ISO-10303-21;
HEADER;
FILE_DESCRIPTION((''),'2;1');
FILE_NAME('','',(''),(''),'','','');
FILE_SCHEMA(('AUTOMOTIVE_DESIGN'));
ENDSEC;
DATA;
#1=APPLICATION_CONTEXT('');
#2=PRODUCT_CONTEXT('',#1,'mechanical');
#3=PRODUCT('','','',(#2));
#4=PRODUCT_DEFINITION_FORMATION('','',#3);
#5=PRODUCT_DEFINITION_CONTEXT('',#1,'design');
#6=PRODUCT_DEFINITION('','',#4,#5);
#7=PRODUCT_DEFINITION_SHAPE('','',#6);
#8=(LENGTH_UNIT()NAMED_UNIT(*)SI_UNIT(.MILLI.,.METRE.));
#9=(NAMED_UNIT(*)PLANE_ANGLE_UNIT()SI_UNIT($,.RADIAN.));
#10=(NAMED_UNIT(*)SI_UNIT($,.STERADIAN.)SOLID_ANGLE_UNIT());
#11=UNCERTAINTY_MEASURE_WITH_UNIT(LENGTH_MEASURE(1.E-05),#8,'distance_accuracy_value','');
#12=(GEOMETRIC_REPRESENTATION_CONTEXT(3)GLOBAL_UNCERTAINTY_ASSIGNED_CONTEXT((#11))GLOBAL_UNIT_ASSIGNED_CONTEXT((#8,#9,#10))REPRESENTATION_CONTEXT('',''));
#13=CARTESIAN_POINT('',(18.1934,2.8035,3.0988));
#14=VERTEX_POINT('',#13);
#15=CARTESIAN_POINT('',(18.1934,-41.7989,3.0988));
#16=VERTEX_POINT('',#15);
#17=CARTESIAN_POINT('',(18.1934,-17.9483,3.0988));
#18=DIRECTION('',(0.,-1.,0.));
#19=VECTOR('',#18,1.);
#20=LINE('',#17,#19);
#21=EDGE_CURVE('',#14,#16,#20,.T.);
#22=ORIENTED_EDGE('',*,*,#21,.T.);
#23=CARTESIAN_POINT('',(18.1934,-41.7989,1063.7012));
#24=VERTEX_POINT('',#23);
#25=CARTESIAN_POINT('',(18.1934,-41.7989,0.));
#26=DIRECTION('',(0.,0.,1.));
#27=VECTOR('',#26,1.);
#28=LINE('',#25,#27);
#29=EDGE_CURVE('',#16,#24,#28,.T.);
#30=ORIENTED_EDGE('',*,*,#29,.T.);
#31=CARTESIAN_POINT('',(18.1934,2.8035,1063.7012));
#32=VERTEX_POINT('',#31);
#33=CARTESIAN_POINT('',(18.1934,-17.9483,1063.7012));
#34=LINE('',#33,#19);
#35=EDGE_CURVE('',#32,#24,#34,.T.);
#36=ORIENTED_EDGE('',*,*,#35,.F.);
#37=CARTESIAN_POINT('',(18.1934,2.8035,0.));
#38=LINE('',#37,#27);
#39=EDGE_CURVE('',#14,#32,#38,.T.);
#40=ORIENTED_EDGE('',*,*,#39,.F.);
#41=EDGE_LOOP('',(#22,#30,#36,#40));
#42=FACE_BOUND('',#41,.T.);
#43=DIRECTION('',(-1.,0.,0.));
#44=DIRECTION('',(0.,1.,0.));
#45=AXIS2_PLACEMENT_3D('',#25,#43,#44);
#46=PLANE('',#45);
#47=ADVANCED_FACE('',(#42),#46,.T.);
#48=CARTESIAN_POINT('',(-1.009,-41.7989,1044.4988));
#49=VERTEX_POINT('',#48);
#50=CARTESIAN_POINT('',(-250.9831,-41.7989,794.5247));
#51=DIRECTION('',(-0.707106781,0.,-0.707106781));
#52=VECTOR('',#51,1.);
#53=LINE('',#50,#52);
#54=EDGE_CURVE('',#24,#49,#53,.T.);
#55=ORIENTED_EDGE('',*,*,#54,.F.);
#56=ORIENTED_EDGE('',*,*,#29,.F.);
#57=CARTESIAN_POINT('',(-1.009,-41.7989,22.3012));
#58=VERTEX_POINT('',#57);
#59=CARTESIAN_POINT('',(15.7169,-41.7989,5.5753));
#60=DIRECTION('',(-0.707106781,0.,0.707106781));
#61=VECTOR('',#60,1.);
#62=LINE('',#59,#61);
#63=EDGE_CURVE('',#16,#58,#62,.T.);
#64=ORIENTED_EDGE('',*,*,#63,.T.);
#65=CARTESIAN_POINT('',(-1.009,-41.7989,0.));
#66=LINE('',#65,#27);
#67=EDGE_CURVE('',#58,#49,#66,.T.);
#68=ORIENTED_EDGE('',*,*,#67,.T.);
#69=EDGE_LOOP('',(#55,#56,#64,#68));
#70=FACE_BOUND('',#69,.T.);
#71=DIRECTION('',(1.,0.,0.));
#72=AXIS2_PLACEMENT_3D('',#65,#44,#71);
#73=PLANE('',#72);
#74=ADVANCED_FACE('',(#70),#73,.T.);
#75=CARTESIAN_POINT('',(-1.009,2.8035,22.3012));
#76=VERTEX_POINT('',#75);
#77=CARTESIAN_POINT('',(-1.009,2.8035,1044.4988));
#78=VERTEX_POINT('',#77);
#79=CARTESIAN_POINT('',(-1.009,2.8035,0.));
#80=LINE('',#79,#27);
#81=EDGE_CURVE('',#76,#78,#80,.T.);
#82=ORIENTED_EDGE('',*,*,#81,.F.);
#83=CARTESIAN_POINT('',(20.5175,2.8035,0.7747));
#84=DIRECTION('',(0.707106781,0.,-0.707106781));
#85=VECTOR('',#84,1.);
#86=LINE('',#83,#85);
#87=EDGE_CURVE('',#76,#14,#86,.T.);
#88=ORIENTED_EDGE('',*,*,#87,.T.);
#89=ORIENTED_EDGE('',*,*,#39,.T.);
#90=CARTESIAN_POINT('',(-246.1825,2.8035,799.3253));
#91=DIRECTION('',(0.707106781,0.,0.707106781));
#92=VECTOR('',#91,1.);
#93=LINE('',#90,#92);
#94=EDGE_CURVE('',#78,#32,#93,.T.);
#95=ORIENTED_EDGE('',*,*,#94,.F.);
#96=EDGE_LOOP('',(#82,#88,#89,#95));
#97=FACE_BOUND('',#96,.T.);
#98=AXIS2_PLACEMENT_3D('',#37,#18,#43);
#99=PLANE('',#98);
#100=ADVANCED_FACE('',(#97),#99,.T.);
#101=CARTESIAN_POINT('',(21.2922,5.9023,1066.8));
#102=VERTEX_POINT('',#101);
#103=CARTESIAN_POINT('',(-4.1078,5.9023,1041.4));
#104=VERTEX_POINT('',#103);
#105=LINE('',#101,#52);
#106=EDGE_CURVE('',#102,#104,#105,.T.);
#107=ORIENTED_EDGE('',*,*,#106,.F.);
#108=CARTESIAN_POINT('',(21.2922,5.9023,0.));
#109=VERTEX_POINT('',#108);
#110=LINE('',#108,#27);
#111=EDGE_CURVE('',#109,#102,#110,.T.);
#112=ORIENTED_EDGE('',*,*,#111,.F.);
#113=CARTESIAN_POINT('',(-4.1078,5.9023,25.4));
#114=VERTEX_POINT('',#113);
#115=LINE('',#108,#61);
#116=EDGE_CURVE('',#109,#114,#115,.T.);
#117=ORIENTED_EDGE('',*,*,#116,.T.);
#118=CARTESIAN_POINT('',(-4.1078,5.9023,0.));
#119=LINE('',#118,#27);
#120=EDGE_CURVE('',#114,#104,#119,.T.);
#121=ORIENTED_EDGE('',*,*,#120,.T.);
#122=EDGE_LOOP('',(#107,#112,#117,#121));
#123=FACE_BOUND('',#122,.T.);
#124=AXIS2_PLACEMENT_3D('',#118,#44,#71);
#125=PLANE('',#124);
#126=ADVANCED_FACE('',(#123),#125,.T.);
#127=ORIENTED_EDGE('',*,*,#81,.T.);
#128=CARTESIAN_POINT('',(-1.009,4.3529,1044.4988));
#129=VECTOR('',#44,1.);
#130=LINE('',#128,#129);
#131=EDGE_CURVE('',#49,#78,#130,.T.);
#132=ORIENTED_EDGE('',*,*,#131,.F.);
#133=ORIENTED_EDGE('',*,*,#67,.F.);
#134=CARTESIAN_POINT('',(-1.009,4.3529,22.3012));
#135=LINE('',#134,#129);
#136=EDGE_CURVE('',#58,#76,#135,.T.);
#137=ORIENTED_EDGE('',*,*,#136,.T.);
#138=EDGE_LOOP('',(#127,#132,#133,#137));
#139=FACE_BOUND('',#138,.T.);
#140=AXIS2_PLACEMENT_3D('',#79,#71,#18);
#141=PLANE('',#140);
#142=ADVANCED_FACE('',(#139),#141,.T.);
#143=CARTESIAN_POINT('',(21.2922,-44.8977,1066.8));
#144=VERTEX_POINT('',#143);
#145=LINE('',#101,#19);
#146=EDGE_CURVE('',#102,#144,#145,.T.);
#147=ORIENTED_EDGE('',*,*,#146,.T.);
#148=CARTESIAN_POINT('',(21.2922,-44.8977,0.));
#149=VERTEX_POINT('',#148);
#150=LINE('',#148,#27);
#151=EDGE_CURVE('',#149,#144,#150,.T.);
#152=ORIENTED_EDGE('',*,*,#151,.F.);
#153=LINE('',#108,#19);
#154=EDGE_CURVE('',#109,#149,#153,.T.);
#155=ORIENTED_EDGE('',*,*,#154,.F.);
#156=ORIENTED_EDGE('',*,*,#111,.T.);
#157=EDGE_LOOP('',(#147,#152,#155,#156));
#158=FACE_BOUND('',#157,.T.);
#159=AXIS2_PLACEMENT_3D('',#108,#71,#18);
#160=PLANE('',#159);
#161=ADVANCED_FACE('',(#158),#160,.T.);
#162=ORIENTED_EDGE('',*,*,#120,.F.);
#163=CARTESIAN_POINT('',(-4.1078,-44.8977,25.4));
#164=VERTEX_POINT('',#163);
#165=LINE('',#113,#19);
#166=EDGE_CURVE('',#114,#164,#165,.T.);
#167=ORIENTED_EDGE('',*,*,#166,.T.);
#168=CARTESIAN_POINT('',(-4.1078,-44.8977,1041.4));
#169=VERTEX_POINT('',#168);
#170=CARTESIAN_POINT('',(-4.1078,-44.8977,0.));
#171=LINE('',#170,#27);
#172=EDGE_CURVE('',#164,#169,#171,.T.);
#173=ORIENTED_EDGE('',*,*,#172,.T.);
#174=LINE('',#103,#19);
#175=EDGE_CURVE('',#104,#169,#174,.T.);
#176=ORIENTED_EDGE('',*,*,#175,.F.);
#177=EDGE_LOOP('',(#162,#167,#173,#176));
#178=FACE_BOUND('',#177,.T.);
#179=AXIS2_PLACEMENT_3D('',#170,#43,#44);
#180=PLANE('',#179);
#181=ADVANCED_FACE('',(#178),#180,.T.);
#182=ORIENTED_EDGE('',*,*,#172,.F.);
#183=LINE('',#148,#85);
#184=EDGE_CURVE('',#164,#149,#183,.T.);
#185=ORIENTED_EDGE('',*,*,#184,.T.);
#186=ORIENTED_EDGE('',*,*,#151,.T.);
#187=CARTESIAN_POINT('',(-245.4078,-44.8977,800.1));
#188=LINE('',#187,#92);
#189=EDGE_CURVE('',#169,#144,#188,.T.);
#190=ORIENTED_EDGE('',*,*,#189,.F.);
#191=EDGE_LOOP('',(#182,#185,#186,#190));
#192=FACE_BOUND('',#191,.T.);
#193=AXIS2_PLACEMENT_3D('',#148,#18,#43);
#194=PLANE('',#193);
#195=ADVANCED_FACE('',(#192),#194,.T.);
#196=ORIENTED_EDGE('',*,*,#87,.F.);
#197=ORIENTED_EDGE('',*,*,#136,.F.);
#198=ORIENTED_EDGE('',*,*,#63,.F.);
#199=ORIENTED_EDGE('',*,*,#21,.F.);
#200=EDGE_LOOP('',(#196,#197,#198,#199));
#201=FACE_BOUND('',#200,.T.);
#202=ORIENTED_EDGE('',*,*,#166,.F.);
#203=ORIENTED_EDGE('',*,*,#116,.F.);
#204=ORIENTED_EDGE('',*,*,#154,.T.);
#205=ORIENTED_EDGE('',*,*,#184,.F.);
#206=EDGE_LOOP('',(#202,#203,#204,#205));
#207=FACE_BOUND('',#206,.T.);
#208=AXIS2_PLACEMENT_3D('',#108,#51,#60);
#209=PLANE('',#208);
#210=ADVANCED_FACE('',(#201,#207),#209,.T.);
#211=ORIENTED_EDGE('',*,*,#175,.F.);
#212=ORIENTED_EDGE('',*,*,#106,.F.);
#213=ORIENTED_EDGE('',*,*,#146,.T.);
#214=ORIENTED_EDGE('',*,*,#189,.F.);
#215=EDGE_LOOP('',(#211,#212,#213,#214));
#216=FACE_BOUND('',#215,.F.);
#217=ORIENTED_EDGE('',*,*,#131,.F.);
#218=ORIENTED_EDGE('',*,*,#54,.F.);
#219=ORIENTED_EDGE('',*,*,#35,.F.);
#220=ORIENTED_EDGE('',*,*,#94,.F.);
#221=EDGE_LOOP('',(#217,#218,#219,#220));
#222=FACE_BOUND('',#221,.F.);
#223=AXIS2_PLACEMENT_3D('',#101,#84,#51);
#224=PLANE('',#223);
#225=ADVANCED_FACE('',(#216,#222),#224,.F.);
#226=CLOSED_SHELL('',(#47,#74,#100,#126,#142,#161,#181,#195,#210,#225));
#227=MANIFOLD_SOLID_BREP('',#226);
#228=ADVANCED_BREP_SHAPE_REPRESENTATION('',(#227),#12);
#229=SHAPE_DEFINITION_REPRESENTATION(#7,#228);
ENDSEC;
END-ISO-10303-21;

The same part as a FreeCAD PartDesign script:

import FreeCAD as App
import Part
import Sketcher

V = App.Vector
Q = App.Units.Quantity


def add_polygon(sketch, points):
    """Adds a closed chain of lines whose ends are joined by coincident constraints."""
    first, n = sketch.GeometryCount, len(points)
    for a, b in zip(points, points[1:] + points[:1]):
        sketch.addGeometry(Part.LineSegment(App.Vector(*a, 0), App.Vector(*b, 0)), False)
    for i in range(n):
        sketch.addConstraint(Sketcher.Constraint("Coincident", first + i, 2, first + (i + 1) % n, 1))

doc = App.newDocument("Part")
body = doc.addObject("PartDesign::Body", "Body")

sketch1 = doc.addObject("Sketcher::SketchObject", "Sketch")
body.addObject(sketch1)
sketch1.AttachmentSupport = (doc.XY_Plane, [""])
sketch1.MapMode = "FlatFace"
add_polygon(sketch1, [(21.2922, 5.9023), (-4.1078, 5.9023), (-4.1078, -44.8977), (21.2922, -44.8977)])
add_polygon(sketch1, [(-1.009, 2.8035), (18.1934, 2.8035), (18.1934, -41.7989), (-1.009, -41.7989)])
sketch1.addConstraint(Sketcher.Constraint("Horizontal", 0))
sketch1.addConstraint(Sketcher.Constraint("Vertical", 1))
sketch1.addConstraint(Sketcher.Constraint("Horizontal", 2))
sketch1.addConstraint(Sketcher.Constraint("Vertical", 3))
sketch1.addConstraint(Sketcher.Constraint("Horizontal", 4))
sketch1.addConstraint(Sketcher.Constraint("Vertical", 5))
sketch1.addConstraint(Sketcher.Constraint("Horizontal", 6))
sketch1.addConstraint(Sketcher.Constraint("Vertical", 7))
sketch1.addConstraint(Sketcher.Constraint("DistanceX", 0, 2, 0, 1, Q("1 in")))
sketch1.addConstraint(Sketcher.Constraint("DistanceY", 1, 2, 1, 1, Q("2 in")))
sketch1.addConstraint(Sketcher.Constraint("DistanceX", 4, 2, 3, 2, Q("0.122 in")))
sketch1.addConstraint(Sketcher.Constraint("DistanceY", 4, 2, 3, 2, Q("0.122 in")))
sketch1.addConstraint(Sketcher.Constraint("DistanceY", 2, 2, 5, 2, Q("0.122 in")))
sketch1.addConstraint(Sketcher.Constraint("DistanceX", 1, 2, 6, 2, Q("0.122 in")))
sketch1.addConstraint(Sketcher.Constraint("DistanceX", 0, 2, -1, 1, 4.1078))
sketch1.addConstraint(Sketcher.Constraint("DistanceY", -1, 1, 0, 2, 5.9023))
pad1 = doc.addObject("PartDesign::Pad", "Pad")
body.addObject(pad1)
pad1.Profile = sketch1
pad1.Length = Q("42 in")

sketch2 = doc.addObject("Sketcher::SketchObject", "Sketch001")
body.addObject(sketch2)
sketch2.AttachmentSupport = (doc.XZ_Plane, [""])
sketch2.MapMode = "FlatFace"
sketch2.AttachmentOffset = App.Placement(V(0, 0, -5.9023), App.Rotation())
add_polygon(sketch2, [(-4.1078, 25.4), (21.2922, 0), (-4.1078, 0)])
sketch2.addConstraint(Sketcher.Constraint("Horizontal", 1))
sketch2.addConstraint(Sketcher.Constraint("Vertical", 2))
sketch2.addConstraint(Sketcher.Constraint("PointOnObject", 0, 2, -1))
sketch2.addConstraint(Sketcher.Constraint("Equal", 1, 2))
sketch2.addConstraint(Sketcher.Constraint("DistanceX", 1, 2, 1, 1, Q("1 in")))
sketch2.addConstraint(Sketcher.Constraint("DistanceX", -1, 1, 0, 2, 21.2922))
pocket1 = doc.addObject("PartDesign::Pocket", "Pocket")
body.addObject(pocket1)
pocket1.Profile = sketch2
pocket1.Length = Q("42 in")
pocket1.Reversed = True

sketch3 = doc.addObject("Sketcher::SketchObject", "Sketch002")
body.addObject(sketch3)
sketch3.AttachmentSupport = (doc.XZ_Plane, [""])
sketch3.MapMode = "FlatFace"
sketch3.AttachmentOffset = App.Placement(V(0, 0, -5.9023), App.Rotation())
add_polygon(sketch3, [(21.2922, 1066.8), (-4.1078, 1041.4), (-4.1078, 1066.8)])
sketch3.addConstraint(Sketcher.Constraint("Vertical", 1))
sketch3.addConstraint(Sketcher.Constraint("Horizontal", 2))
sketch3.addConstraint(Sketcher.Constraint("Equal", 2, 1))
sketch3.addConstraint(Sketcher.Constraint("DistanceX", 2, 1, 2, 2, Q("1 in")))
sketch3.addConstraint(Sketcher.Constraint("DistanceY", -1, 1, 0, 2, Q("41 in")))
sketch3.addConstraint(Sketcher.Constraint("DistanceX", 0, 2, -1, 1, 4.1078))
pocket2 = doc.addObject("PartDesign::Pocket", "Pocket001")
body.addObject(pocket2)
pocket2.Profile = sketch3
pocket2.Length = Q("42 in")
pocket2.Reversed = True

doc.recompute()
